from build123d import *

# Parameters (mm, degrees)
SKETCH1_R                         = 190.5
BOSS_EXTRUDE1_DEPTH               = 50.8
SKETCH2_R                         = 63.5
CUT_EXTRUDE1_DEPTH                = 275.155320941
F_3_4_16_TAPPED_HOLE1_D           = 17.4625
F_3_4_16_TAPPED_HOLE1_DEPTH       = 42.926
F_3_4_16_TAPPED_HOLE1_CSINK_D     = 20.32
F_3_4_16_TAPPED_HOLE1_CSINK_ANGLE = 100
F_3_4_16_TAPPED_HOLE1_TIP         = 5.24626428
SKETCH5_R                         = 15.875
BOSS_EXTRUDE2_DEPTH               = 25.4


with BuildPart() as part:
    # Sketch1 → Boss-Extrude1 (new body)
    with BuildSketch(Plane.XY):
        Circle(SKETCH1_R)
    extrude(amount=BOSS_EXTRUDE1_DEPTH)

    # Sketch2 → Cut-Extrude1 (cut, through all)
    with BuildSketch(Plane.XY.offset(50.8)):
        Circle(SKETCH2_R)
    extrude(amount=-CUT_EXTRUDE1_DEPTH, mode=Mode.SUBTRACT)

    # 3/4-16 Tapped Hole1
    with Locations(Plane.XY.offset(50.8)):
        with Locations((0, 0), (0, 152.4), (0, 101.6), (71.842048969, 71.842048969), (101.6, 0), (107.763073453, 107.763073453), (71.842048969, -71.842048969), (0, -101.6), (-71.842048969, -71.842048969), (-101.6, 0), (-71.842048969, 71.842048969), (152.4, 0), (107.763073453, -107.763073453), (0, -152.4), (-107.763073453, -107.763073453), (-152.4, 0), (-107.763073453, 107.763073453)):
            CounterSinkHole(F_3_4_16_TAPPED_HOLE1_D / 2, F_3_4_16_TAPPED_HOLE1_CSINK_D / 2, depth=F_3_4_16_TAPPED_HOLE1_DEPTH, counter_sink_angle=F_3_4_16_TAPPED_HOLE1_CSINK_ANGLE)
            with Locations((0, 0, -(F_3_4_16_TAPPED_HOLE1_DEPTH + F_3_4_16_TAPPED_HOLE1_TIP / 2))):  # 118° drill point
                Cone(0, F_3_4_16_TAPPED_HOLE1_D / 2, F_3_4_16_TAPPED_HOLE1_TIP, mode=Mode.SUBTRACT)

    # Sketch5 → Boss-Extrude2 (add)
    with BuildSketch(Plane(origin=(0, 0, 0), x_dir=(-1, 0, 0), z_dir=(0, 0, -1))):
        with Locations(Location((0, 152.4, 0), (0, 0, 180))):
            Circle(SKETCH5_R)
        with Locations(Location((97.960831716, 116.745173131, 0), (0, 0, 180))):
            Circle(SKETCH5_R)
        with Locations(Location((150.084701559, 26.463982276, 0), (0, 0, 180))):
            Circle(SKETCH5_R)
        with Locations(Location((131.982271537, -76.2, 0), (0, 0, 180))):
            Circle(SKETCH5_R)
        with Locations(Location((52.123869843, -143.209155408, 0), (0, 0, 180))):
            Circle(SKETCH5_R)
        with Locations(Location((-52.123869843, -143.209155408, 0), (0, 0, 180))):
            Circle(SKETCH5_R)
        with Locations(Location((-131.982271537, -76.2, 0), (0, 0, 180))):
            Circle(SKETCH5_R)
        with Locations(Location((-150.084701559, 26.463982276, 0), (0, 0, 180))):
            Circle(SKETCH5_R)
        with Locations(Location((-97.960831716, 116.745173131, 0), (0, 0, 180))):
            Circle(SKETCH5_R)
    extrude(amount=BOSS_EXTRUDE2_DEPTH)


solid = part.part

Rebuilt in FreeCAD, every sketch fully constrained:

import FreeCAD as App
import Part
import Sketcher
Q = App.Units.Quantity

doc = App.newDocument("Part")
body = doc.addObject("PartDesign::Body", "Body")

sketch1 = body.newObject("Sketcher::SketchObject", "Sketch")
sketch1.AttachmentSupport = (doc.getObject("XY_Plane"), [""])
sketch1.MapMode = "FlatFace"
sketch1.addGeometry(Part.Circle(App.Vector(0, 0, 0), App.Vector(0, 0, 1), 190), False)
sketch1.addConstraint(Sketcher.Constraint("Coincident", 0, 3, -1, 1))
sketch1.addConstraint(Sketcher.Constraint("Diameter", 0, Q("15 in")))
pad1 = body.newObject("PartDesign::Pad", "Pad")
pad1.Profile = sketch1
pad1.Length = Q("2 in")

sketch2 = body.newObject("Sketcher::SketchObject", "Sketch001")
sketch2.AttachmentSupport = (doc.getObject("XY_Plane"), [""])
sketch2.MapMode = "FlatFace"
sketch2.AttachmentOffset = App.Placement(App.Vector(0, 0, 2 * 25.4), App.Rotation())
sketch2.addGeometry(Part.Circle(App.Vector(0, 0, 0), App.Vector(0, 0, 1), 64), False)
sketch2.addConstraint(Sketcher.Constraint("Coincident", 0, 3, -1, 1))
sketch2.addConstraint(Sketcher.Constraint("Diameter", 0, Q("5 in")))
pocket1 = body.newObject("PartDesign::Pocket", "Pocket")
pocket1.Profile = sketch2
pocket1.Type = "ThroughAll"

sketch3 = body.newObject("Sketcher::SketchObject", "Sketch002")
sketch3.AttachmentSupport = (doc.getObject("XY_Plane"), [""])
sketch3.MapMode = "FlatFace"
sketch3.AttachmentOffset = App.Placement(App.Vector(0, 0, 2 * 25.4), App.Rotation())
sketch3.addGeometry(Part.Circle(App.Vector(0, 0, 0), App.Vector(0, 0, 1), 9), False)
sketch3.addGeometry(Part.Circle(App.Vector(0, 152, 0), App.Vector(0, 0, 1), 9), False)
sketch3.addGeometry(Part.Circle(App.Vector(0, 102, 0), App.Vector(0, 0, 1), 9), False)
sketch3.addGeometry(Part.Circle(App.Vector(72, 72, 0), App.Vector(0, 0, 1), 9), False)
sketch3.addGeometry(Part.Circle(App.Vector(102, 0, 0), App.Vector(0, 0, 1), 9), False)
sketch3.addGeometry(Part.Circle(App.Vector(108, 108, 0), App.Vector(0, 0, 1), 9), False)
sketch3.addGeometry(Part.Circle(App.Vector(72, -72, 0), App.Vector(0, 0, 1), 9), False)
sketch3.addGeometry(Part.Circle(App.Vector(0, -102, 0), App.Vector(0, 0, 1), 9), False)
sketch3.addGeometry(Part.Circle(App.Vector(-72, -72, 0), App.Vector(0, 0, 1), 9), False)
sketch3.addGeometry(Part.Circle(App.Vector(-102, 0, 0), App.Vector(0, 0, 1), 9), False)
sketch3.addGeometry(Part.Circle(App.Vector(-72, 72, 0), App.Vector(0, 0, 1), 9), False)
sketch3.addGeometry(Part.Circle(App.Vector(152, 0, 0), App.Vector(0, 0, 1), 9), False)
sketch3.addGeometry(Part.Circle(App.Vector(108, -108, 0), App.Vector(0, 0, 1), 9), False)
sketch3.addGeometry(Part.Circle(App.Vector(0, -152, 0), App.Vector(0, 0, 1), 9), False)
sketch3.addGeometry(Part.Circle(App.Vector(-108, -108, 0), App.Vector(0, 0, 1), 9), False)
sketch3.addGeometry(Part.Circle(App.Vector(-152, 0, 0), App.Vector(0, 0, 1), 9), False)
sketch3.addGeometry(Part.Circle(App.Vector(-108, 108, 0), App.Vector(0, 0, 1), 9), False)
sketch3.addConstraint(Sketcher.Constraint("Coincident", 0, 3, -1, 1))
sketch3.addConstraint(Sketcher.Constraint("Equal", 0, 1))
sketch3.addConstraint(Sketcher.Constraint("Equal", 1, 2))
sketch3.addConstraint(Sketcher.Constraint("Equal", 2, 3))
sketch3.addConstraint(Sketcher.Constraint("Equal", 3, 4))
sketch3.addConstraint(Sketcher.Constraint("Equal", 4, 5))
sketch3.addConstraint(Sketcher.Constraint("Equal", 5, 6))
sketch3.addConstraint(Sketcher.Constraint("Equal", 6, 7))
sketch3.addConstraint(Sketcher.Constraint("Equal", 7, 8))
sketch3.addConstraint(Sketcher.Constraint("Equal", 8, 9))
sketch3.addConstraint(Sketcher.Constraint("Equal", 9, 10))
sketch3.addConstraint(Sketcher.Constraint("Equal", 10, 11))
sketch3.addConstraint(Sketcher.Constraint("Equal", 11, 12))
sketch3.addConstraint(Sketcher.Constraint("Equal", 12, 13))
sketch3.addConstraint(Sketcher.Constraint("Equal", 13, 14))
sketch3.addConstraint(Sketcher.Constraint("Equal", 14, 15))
sketch3.addConstraint(Sketcher.Constraint("Equal", 15, 16))
sketch3.addConstraint(Sketcher.Constraint("Symmetric", 2, 3, 7, 3, -1, 1))
sketch3.addConstraint(Sketcher.Constraint("Symmetric", 3, 3, 8, 3, -1, 1))
sketch3.addConstraint(Sketcher.Constraint("Symmetric", 4, 3, 9, 3, -1, 1))
sketch3.addConstraint(Sketcher.Constraint("Symmetric", 6, 3, 10, 3, -1, 1))
sketch3.addConstraint(Sketcher.Constraint("Symmetric", 1, 3, 13, 3, -1, 1))
sketch3.addConstraint(Sketcher.Constraint("Symmetric", 5, 3, 14, 3, -1, 1))
sketch3.addConstraint(Sketcher.Constraint("Symmetric", 11, 3, 15, 3, -1, 1))
sketch3.addConstraint(Sketcher.Constraint("Symmetric", 12, 3, 16, 3, -1, 1))
sketch3.addConstraint(Sketcher.Constraint("Symmetric", 6, 3, 8, 3, -2))
sketch3.addConstraint(Sketcher.Constraint("Symmetric", 12, 3, 14, 3, -2))
sketch3.addConstraint(Sketcher.Constraint("PointOnObject", 1, 3, -2))
sketch3.addConstraint(Sketcher.Constraint("PointOnObject", 2, 3, -2))
sketch3.addConstraint(Sketcher.Constraint("PointOnObject", 4, 3, -1))
sketch3.addConstraint(Sketcher.Constraint("PointOnObject", 11, 3, -1))
sketch3.addConstraint(Sketcher.Constraint("Diameter", 0, Q("0.6875 in")))
sketch3.addConstraint(Sketcher.Constraint("DistanceY", -1, 1, 1, 3, Q("6 in")))
sketch3.addConstraint(Sketcher.Constraint("DistanceY", -1, 1, 2, 3, Q("4 in")))
sketch3.addConstraint(Sketcher.Constraint("DistanceX", -1, 1, 4, 3, Q("4 in")))
sketch3.addConstraint(Sketcher.Constraint("DistanceX", -1, 1, 11, 3, Q("6 in")))
sketch3.addConstraint(Sketcher.Constraint("DistanceX", -1, 1, 3, 3, 71.842049))
sketch3.addConstraint(Sketcher.Constraint("DistanceY", -1, 1, 3, 3, 71.842049))
sketch3.addConstraint(Sketcher.Constraint("DistanceX", -1, 1, 5, 3, 107.763073))
sketch3.addConstraint(Sketcher.Constraint("DistanceY", -1, 1, 5, 3, 107.763073))
doc.recompute()
hole = body.newObject("PartDesign::Hole", "Hole")
hole.Profile = sketch3
hole.ThreadType = "None"
hole.Diameter = Q("0.6875 in")
hole.DepthType = "Dimension"
hole.Depth = Q("1.69 in")
hole.DrillPoint = "Angled"
hole.DrillPointAngle = 118
hole.HoleCutType = "Countersink"
hole.HoleCutDiameter = Q("0.8 in")
hole.HoleCutCountersinkAngle = 100

sketch4 = body.newObject("Sketcher::SketchObject", "Sketch003")
sketch4.AttachmentSupport = (doc.getObject("XY_Plane"), [""])
sketch4.MapMode = "FlatFace"
sketch4.addGeometry(Part.Circle(App.Vector(0, 152, 0), App.Vector(0, 0, 1), 16), False)
sketch4.addGeometry(Part.Circle(App.Vector(-98, 117, 0), App.Vector(0, 0, 1), 16), False)
sketch4.addGeometry(Part.Circle(App.Vector(-150, 26, 0), App.Vector(0, 0, 1), 16), False)
sketch4.addGeometry(Part.Circle(App.Vector(-132, -76, 0), App.Vector(0, 0, 1), 16), False)
sketch4.addGeometry(Part.Circle(App.Vector(-52, -143, 0), App.Vector(0, 0, 1), 16), False)
sketch4.addGeometry(Part.Circle(App.Vector(52, -143, 0), App.Vector(0, 0, 1), 16), False)
sketch4.addGeometry(Part.Circle(App.Vector(132, -76, 0), App.Vector(0, 0, 1), 16), False)
sketch4.addGeometry(Part.Circle(App.Vector(150, 26, 0), App.Vector(0, 0, 1), 16), False)
sketch4.addGeometry(Part.Circle(App.Vector(98, 117, 0), App.Vector(0, 0, 1), 16), False)
sketch4.addConstraint(Sketcher.Constraint("Equal", 0, 1))
sketch4.addConstraint(Sketcher.Constraint("Equal", 1, 2))
sketch4.addConstraint(Sketcher.Constraint("Equal", 2, 3))
sketch4.addConstraint(Sketcher.Constraint("Equal", 3, 4))
sketch4.addConstraint(Sketcher.Constraint("Equal", 4, 5))
sketch4.addConstraint(Sketcher.Constraint("Equal", 5, 6))
sketch4.addConstraint(Sketcher.Constraint("Equal", 6, 7))
sketch4.addConstraint(Sketcher.Constraint("Equal", 7, 8))
sketch4.addConstraint(Sketcher.Constraint("Symmetric", 4, 3, 5, 3, -2))
sketch4.addConstraint(Sketcher.Constraint("Symmetric", 3, 3, 6, 3, -2))
sketch4.addConstraint(Sketcher.Constraint("Symmetric", 2, 3, 7, 3, -2))
sketch4.addConstraint(Sketcher.Constraint("Symmetric", 1, 3, 8, 3, -2))
sketch4.addConstraint(Sketcher.Constraint("PointOnObject", 0, 3, -2))
sketch4.addConstraint(Sketcher.Constraint("Diameter", 0, Q("1.25 in")))
sketch4.addConstraint(Sketcher.Constraint("DistanceY", -1, 1, 0, 3, Q("6 in")))
sketch4.addConstraint(Sketcher.Constraint("DistanceY", 3, 3, -1, 1, Q("3 in")))
sketch4.addConstraint(Sketcher.Constraint("DistanceX", 2, 3, -1, 1, 150.084702))
sketch4.addConstraint(Sketcher.Constraint("DistanceX", 3, 3, 4, 3, 79.858402))
sketch4.addConstraint(Sketcher.Constraint("DistanceX", 1, 3, 5, 3, 150.084702))
sketch4.addConstraint(Sketcher.Constraint("DistanceX", 1, 3, -1, 1, 97.960832))
sketch4.addConstraint(Sketcher.Constraint("DistanceY", 2, 3, 1, 3, 90.281191))
sketch4.addConstraint(Sketcher.Constraint("DistanceY", 4, 3, 1, 3, 259.954329))
sketch4.addConstraint(Sketcher.Constraint("DistanceY", -1, 1, 1, 3, 116.745173))
pad2 = body.newObject("PartDesign::Pad", "Pad001")
pad2.Profile = sketch4
pad2.Length = Q("1 in")
pad2.Reversed = True

doc.recompute()
